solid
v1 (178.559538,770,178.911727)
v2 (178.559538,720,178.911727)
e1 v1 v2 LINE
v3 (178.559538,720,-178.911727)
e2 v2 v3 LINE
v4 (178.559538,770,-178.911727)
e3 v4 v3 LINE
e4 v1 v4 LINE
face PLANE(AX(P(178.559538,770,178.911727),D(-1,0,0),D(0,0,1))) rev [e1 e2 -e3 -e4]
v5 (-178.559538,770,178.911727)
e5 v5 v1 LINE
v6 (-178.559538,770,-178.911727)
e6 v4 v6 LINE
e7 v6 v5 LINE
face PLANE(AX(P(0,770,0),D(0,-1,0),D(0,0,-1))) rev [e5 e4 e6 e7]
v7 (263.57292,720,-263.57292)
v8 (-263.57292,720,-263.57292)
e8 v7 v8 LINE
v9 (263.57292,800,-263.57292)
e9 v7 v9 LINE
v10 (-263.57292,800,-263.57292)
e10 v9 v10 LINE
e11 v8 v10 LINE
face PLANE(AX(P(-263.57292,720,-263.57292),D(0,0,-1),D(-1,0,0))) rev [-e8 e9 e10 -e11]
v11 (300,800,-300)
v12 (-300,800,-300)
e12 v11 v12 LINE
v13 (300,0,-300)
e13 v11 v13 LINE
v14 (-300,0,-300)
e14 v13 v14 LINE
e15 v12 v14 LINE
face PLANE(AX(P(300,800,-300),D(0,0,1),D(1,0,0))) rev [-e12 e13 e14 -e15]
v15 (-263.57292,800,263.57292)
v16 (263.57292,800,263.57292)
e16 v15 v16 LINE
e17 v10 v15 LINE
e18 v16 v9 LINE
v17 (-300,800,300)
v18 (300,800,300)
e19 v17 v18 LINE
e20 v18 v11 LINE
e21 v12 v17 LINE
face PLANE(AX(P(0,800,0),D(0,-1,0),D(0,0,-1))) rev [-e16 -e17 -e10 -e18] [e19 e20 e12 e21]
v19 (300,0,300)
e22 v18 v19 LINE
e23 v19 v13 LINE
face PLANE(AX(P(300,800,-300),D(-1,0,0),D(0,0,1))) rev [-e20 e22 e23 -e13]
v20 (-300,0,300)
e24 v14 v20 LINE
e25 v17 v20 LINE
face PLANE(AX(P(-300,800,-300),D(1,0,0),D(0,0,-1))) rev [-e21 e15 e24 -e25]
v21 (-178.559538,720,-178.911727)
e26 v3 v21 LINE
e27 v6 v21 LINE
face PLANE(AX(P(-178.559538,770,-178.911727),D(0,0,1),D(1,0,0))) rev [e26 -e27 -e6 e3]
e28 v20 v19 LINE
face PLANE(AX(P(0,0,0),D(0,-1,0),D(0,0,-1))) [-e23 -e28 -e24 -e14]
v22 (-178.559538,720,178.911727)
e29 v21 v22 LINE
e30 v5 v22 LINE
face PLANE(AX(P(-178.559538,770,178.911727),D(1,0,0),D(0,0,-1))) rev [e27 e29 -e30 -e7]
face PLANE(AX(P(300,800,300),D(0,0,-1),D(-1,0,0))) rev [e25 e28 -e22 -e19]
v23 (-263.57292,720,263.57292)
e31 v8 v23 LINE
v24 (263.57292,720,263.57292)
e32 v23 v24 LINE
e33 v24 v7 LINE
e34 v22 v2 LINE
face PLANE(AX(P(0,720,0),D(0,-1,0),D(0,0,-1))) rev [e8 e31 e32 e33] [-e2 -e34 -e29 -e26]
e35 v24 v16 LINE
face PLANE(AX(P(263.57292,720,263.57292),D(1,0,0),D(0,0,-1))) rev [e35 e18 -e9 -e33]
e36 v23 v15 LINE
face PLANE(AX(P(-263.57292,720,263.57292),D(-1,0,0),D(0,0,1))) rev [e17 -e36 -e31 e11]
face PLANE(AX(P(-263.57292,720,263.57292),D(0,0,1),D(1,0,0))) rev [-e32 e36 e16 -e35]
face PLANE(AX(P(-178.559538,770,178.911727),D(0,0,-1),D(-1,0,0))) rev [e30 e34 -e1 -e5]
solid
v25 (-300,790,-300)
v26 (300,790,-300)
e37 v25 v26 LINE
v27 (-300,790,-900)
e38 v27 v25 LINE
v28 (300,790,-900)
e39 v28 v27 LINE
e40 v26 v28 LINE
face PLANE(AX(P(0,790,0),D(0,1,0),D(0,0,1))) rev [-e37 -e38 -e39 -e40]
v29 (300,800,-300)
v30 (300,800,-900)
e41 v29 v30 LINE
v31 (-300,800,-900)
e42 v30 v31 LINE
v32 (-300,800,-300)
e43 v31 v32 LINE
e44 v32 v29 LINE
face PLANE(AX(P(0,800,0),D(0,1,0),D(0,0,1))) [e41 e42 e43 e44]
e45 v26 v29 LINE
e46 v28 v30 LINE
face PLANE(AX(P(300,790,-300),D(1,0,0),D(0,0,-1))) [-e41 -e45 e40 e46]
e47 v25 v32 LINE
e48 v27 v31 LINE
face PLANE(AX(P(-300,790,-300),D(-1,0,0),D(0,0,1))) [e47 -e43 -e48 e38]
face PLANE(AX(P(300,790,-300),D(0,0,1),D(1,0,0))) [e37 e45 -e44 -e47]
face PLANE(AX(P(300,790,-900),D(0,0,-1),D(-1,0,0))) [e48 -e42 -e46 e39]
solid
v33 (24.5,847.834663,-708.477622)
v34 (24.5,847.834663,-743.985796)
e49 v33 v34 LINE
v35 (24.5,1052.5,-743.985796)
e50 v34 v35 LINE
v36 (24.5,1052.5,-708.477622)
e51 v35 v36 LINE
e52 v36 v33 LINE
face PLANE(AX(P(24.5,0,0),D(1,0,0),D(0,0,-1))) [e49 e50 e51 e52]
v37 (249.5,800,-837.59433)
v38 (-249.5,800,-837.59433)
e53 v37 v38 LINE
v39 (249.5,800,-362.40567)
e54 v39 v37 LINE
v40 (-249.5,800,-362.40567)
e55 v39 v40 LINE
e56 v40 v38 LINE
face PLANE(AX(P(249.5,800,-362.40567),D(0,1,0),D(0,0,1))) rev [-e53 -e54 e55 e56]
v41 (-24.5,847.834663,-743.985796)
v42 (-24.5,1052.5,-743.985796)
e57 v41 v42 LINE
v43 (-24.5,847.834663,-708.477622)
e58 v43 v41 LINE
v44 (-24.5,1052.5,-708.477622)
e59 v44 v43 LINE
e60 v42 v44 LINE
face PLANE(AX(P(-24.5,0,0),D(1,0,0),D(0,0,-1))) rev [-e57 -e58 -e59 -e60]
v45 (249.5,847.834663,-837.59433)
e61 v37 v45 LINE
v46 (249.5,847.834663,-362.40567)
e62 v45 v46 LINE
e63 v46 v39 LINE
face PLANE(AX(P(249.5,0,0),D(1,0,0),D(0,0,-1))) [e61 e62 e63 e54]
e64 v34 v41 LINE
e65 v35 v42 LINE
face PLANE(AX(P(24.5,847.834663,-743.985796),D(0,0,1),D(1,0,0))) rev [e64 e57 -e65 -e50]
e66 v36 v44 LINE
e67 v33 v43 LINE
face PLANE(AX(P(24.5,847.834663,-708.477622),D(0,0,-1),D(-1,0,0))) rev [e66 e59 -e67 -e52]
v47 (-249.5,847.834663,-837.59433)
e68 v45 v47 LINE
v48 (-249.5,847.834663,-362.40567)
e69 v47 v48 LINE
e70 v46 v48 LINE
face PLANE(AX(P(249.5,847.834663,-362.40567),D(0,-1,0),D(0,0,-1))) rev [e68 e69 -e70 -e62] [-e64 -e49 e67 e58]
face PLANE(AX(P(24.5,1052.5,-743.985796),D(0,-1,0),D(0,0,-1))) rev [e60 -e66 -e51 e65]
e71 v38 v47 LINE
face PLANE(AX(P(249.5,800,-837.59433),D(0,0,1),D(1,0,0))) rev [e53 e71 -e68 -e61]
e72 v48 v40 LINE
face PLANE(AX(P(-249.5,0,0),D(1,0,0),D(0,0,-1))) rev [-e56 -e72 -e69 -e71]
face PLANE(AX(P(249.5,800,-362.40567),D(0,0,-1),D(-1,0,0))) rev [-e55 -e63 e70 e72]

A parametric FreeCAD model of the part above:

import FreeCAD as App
import Part
import Sketcher
Q = App.Units.Quantity

doc = App.newDocument("Part")
body = doc.addObject("PartDesign::Body", "Body")

sketch1 = body.newObject("Sketcher::SketchObject", "Sketch")
sketch1.AttachmentSupport = (doc.getObject("XZ_Plane"), [""])
sketch1.MapMode = "FlatFace"
sketch1.addGeometry(Part.LineSegment(App.Vector(-300, -300, 0), App.Vector(-300, 300, 0)), False)
sketch1.addGeometry(Part.LineSegment(App.Vector(-300, 300, 0), App.Vector(300, 300, 0)), False)
sketch1.addGeometry(Part.LineSegment(App.Vector(300, 300, 0), App.Vector(300, -300, 0)), False)
sketch1.addGeometry(Part.LineSegment(App.Vector(300, -300, 0), App.Vector(-300, -300, 0)), False)
sketch1.addConstraint(Sketcher.Constraint("Coincident", 0, 2, 1, 1))
sketch1.addConstraint(Sketcher.Constraint("Coincident", 1, 2, 2, 1))
sketch1.addConstraint(Sketcher.Constraint("Coincident", 2, 2, 3, 1))
sketch1.addConstraint(Sketcher.Constraint("Coincident", 3, 2, 0, 1))
sketch1.addConstraint(Sketcher.Constraint("Vertical", 0))
sketch1.addConstraint(Sketcher.Constraint("Horizontal", 1))
sketch1.addConstraint(Sketcher.Constraint("Vertical", 2))
sketch1.addConstraint(Sketcher.Constraint("Horizontal", 3))
sketch1.addConstraint(Sketcher.Constraint("Symmetric", 0, 2, 2, 2, -1, 1))
sketch1.addConstraint(Sketcher.Constraint("Equal", 3, 0))
sketch1.addConstraint(Sketcher.Constraint("DistanceX", 1, 1, 1, 2, Q("600 mm")))
pad1 = body.newObject("PartDesign::Pad", "Pad")
pad1.Profile = sketch1
pad1.Length = 800
pad1.Reversed = True

sketch2 = body.newObject("Sketcher::SketchObject", "Sketch001")
sketch2.AttachmentSupport = (doc.getObject("XZ_Plane"), [""])
sketch2.MapMode = "FlatFace"
sketch2.AttachmentOffset = App.Placement(App.Vector(0, 0, -800), App.Rotation())
sketch2.addGeometry(Part.LineSegment(App.Vector(-264, -264, 0), App.Vector(-264, 264, 0)), False)
sketch2.addGeometry(Part.LineSegment(App.Vector(-264, 264, 0), App.Vector(264, 264, 0)), False)
sketch2.addGeometry(Part.LineSegment(App.Vector(264, 264, 0), App.Vector(264, -264, 0)), False)
sketch2.addGeometry(Part.LineSegment(App.Vector(264, -264, 0), App.Vector(-264, -264, 0)), False)
sketch2.addConstraint(Sketcher.Constraint("Coincident", 0, 2, 1, 1))
sketch2.addConstraint(Sketcher.Constraint("Coincident", 1, 2, 2, 1))
sketch2.addConstraint(Sketcher.Constraint("Coincident", 2, 2, 3, 1))
sketch2.addConstraint(Sketcher.Constraint("Coincident", 3, 2, 0, 1))
sketch2.addConstraint(Sketcher.Constraint("Vertical", 0))
sketch2.addConstraint(Sketcher.Constraint("Horizontal", 1))
sketch2.addConstraint(Sketcher.Constraint("Vertical", 2))
sketch2.addConstraint(Sketcher.Constraint("Horizontal", 3))
sketch2.addConstraint(Sketcher.Constraint("Symmetric", 0, 2, 2, 2, -1, 1))
sketch2.addConstraint(Sketcher.Constraint("Equal", 3, 0))
sketch2.addConstraint(Sketcher.Constraint("DistanceX", 1, 1, 1, 2, Q("527.145841 mm")))
pocket1 = body.newObject("PartDesign::Pocket", "Pocket")
pocket1.Profile = sketch2
pocket1.Length = 80
pocket1.Reversed = True

sketch3 = body.newObject("Sketcher::SketchObject", "Sketch002")
sketch3.AttachmentSupport = (doc.getObject("XZ_Plane"), [""])
sketch3.MapMode = "FlatFace"
sketch3.AttachmentOffset = App.Placement(App.Vector(0, 0, -720), App.Rotation())
sketch3.addGeometry(Part.LineSegment(App.Vector(-179, -179, 0), App.Vector(-179, 179, 0)), False)
sketch3.addGeometry(Part.LineSegment(App.Vector(-179, 179, 0), App.Vector(179, 179, 0)), False)
sketch3.addGeometry(Part.LineSegment(App.Vector(179, 179, 0), App.Vector(179, -179, 0)), False)
sketch3.addGeometry(Part.LineSegment(App.Vector(179, -179, 0), App.Vector(-179, -179, 0)), False)
sketch3.addConstraint(Sketcher.Constraint("Coincident", 0, 2, 1, 1))
sketch3.addConstraint(Sketcher.Constraint("Coincident", 1, 2, 2, 1))
sketch3.addConstraint(Sketcher.Constraint("Coincident", 2, 2, 3, 1))
sketch3.addConstraint(Sketcher.Constraint("Coincident", 3, 2, 0, 1))
sketch3.addConstraint(Sketcher.Constraint("Vertical", 0))
sketch3.addConstraint(Sketcher.Constraint("Horizontal", 1))
sketch3.addConstraint(Sketcher.Constraint("Vertical", 2))
sketch3.addConstraint(Sketcher.Constraint("Horizontal", 3))
sketch3.addConstraint(Sketcher.Constraint("Symmetric", 0, 2, 2, 2, -1, 1))
sketch3.addConstraint(Sketcher.Constraint("DistanceX", 1, 1, 1, 2, Q("357.119077 mm")))
sketch3.addConstraint(Sketcher.Constraint("DistanceY", 0, 1, 0, 2, Q("357.823453 mm")))
pad2 = body.newObject("PartDesign::Pad", "Pad001")
pad2.Profile = sketch3
pad2.Length = 50
pad2.Reversed = True
body2 = doc.addObject("PartDesign::Body", "Body001")

sketch4 = body2.newObject("Sketcher::SketchObject", "Sketch003")
sketch4.AttachmentSupport = (doc.getObject("XZ_Plane001"), [""])
sketch4.MapMode = "FlatFace"
sketch4.AttachmentOffset = App.Placement(App.Vector(0, 0, -800), App.Rotation())
sketch4.addGeometry(Part.LineSegment(App.Vector(-300, -900, 0), App.Vector(-300, -300, 0)), False)
sketch4.addGeometry(Part.LineSegment(App.Vector(-300, -300, 0), App.Vector(300, -300, 0)), False)
sketch4.addGeometry(Part.LineSegment(App.Vector(300, -300, 0), App.Vector(300, -900, 0)), False)
sketch4.addGeometry(Part.LineSegment(App.Vector(300, -900, 0), App.Vector(-300, -900, 0)), False)
sketch4.addConstraint(Sketcher.Constraint("Coincident", 0, 2, 1, 1))
sketch4.addConstraint(Sketcher.Constraint("Coincident", 1, 2, 2, 1))
sketch4.addConstraint(Sketcher.Constraint("Coincident", 2, 2, 3, 1))
sketch4.addConstraint(Sketcher.Constraint("Coincident", 3, 2, 0, 1))
sketch4.addConstraint(Sketcher.Constraint("Vertical", 0))
sketch4.addConstraint(Sketcher.Constraint("Horizontal", 1))
sketch4.addConstraint(Sketcher.Constraint("Vertical", 2))
sketch4.addConstraint(Sketcher.Constraint("Horizontal", 3))
sketch4.addConstraint(Sketcher.Constraint("Equal", 3, 0))
sketch4.addConstraint(Sketcher.Constraint("DistanceX", 1, 1, 1, 2, Q("600 mm")))
sketch4.addConstraint(Sketcher.Constraint("DistanceX", 0, 2, -1, 1, Q("300 mm")))
sketch4.addConstraint(Sketcher.Constraint("DistanceY", 0, 2, -1, 1, Q("300 mm")))
pad3 = body2.newObject("PartDesign::Pad", "Pad002")
pad3.Profile = sketch4
pad3.Length = 10
body3 = doc.addObject("PartDesign::Body", "Body002")

sketch5 = body3.newObject("Sketcher::SketchObject", "Sketch004")
sketch5.AttachmentSupport = (doc.getObject("YZ_Plane002"), [""])
sketch5.MapMode = "FlatFace"
sketch5.addGeometry(Part.LineSegment(App.Vector(848, -362, 0), App.Vector(800, -362, 0)), False)
sketch5.addGeometry(Part.LineSegment(App.Vector(800, -362, 0), App.Vector(800, -838, 0)), False)
sketch5.addGeometry(Part.LineSegment(App.Vector(800, -838, 0), App.Vector(848, -838, 0)), False)
sketch5.addGeometry(Part.LineSegment(App.Vector(848, -838, 0), App.Vector(848, -362, 0)), False)
sketch5.addConstraint(Sketcher.Constraint("Coincident", 0, 2, 1, 1))
sketch5.addConstraint(Sketcher.Constraint("Coincident", 1, 2, 2, 1))
sketch5.addConstraint(Sketcher.Constraint("Coincident", 2, 2, 3, 1))
sketch5.addConstraint(Sketcher.Constraint("Coincident", 3, 2, 0, 1))
sketch5.addConstraint(Sketcher.Constraint("Horizontal", 0))
sketch5.addConstraint(Sketcher.Constraint("Vertical", 1))
sketch5.addConstraint(Sketcher.Constraint("Horizontal", 2))
sketch5.addConstraint(Sketcher.Constraint("Vertical", 3))
sketch5.addConstraint(Sketcher.Constraint("DistanceX", -1, 1, 0, 2, Q("800 mm")))
sketch5.addConstraint(Sketcher.Constraint("DistanceY", 1, 2, 1, 1, Q("475.18866 mm")))
sketch5.addConstraint(Sketcher.Constraint("DistanceX", 0, 2, 0, 1, Q("47.834663 mm")))
sketch5.addConstraint(Sketcher.Constraint("DistanceY", 0, 2, -1, 1, Q("362.40567 mm")))
pad4 = body3.newObject("PartDesign::Pad", "Pad003")
pad4.Profile = sketch5
pad4.Length = 499
pad4.Midplane = True

sketch6 = body3.newObject("Sketcher::SketchObject", "Sketch005")
sketch6.AttachmentSupport = (doc.getObject("YZ_Plane002"), [""])
sketch6.MapMode = "FlatFace"
sketch6.addGeometry(Part.LineSegment(App.Vector(1052, -708, 0), App.Vector(848, -708, 0)), False)
sketch6.addGeometry(Part.LineSegment(App.Vector(848, -708, 0), App.Vector(848, -744, 0)), False)
sketch6.addGeometry(Part.LineSegment(App.Vector(848, -744, 0), App.Vector(1052, -744, 0)), False)
sketch6.addGeometry(Part.LineSegment(App.Vector(1052, -744, 0), App.Vector(1052, -708, 0)), False)
sketch6.addConstraint(Sketcher.Constraint("Coincident", 0, 2, 1, 1))
sketch6.addConstraint(Sketcher.Constraint("Coincident", 1, 2, 2, 1))
sketch6.addConstraint(Sketcher.Constraint("Coincident", 2, 2, 3, 1))
sketch6.addConstraint(Sketcher.Constraint("Coincident", 3, 2, 0, 1))
sketch6.addConstraint(Sketcher.Constraint("Horizontal", 0))
sketch6.addConstraint(Sketcher.Constraint("Vertical", 1))
sketch6.addConstraint(Sketcher.Constraint("Horizontal", 2))
sketch6.addConstraint(Sketcher.Constraint("Vertical", 3))
sketch6.addConstraint(Sketcher.Constraint("DistanceX", -1, 1, 2, 2, Q("1052.5 mm")))
sketch6.addConstraint(Sketcher.Constraint("DistanceX", 0, 2, 0, 1, Q("204.665337 mm")))
sketch6.addConstraint(Sketcher.Constraint("DistanceY", 1, 2, 1, 1, Q("35.508173 mm")))
sketch6.addConstraint(Sketcher.Constraint("DistanceY", 0, 2, -1, 1, Q("708.477622 mm")))
pad5 = body3.newObject("PartDesign::Pad", "Pad004")
pad5.Profile = sketch6
pad5.Length = 49
pad5.Midplane = True

doc.recompute()
